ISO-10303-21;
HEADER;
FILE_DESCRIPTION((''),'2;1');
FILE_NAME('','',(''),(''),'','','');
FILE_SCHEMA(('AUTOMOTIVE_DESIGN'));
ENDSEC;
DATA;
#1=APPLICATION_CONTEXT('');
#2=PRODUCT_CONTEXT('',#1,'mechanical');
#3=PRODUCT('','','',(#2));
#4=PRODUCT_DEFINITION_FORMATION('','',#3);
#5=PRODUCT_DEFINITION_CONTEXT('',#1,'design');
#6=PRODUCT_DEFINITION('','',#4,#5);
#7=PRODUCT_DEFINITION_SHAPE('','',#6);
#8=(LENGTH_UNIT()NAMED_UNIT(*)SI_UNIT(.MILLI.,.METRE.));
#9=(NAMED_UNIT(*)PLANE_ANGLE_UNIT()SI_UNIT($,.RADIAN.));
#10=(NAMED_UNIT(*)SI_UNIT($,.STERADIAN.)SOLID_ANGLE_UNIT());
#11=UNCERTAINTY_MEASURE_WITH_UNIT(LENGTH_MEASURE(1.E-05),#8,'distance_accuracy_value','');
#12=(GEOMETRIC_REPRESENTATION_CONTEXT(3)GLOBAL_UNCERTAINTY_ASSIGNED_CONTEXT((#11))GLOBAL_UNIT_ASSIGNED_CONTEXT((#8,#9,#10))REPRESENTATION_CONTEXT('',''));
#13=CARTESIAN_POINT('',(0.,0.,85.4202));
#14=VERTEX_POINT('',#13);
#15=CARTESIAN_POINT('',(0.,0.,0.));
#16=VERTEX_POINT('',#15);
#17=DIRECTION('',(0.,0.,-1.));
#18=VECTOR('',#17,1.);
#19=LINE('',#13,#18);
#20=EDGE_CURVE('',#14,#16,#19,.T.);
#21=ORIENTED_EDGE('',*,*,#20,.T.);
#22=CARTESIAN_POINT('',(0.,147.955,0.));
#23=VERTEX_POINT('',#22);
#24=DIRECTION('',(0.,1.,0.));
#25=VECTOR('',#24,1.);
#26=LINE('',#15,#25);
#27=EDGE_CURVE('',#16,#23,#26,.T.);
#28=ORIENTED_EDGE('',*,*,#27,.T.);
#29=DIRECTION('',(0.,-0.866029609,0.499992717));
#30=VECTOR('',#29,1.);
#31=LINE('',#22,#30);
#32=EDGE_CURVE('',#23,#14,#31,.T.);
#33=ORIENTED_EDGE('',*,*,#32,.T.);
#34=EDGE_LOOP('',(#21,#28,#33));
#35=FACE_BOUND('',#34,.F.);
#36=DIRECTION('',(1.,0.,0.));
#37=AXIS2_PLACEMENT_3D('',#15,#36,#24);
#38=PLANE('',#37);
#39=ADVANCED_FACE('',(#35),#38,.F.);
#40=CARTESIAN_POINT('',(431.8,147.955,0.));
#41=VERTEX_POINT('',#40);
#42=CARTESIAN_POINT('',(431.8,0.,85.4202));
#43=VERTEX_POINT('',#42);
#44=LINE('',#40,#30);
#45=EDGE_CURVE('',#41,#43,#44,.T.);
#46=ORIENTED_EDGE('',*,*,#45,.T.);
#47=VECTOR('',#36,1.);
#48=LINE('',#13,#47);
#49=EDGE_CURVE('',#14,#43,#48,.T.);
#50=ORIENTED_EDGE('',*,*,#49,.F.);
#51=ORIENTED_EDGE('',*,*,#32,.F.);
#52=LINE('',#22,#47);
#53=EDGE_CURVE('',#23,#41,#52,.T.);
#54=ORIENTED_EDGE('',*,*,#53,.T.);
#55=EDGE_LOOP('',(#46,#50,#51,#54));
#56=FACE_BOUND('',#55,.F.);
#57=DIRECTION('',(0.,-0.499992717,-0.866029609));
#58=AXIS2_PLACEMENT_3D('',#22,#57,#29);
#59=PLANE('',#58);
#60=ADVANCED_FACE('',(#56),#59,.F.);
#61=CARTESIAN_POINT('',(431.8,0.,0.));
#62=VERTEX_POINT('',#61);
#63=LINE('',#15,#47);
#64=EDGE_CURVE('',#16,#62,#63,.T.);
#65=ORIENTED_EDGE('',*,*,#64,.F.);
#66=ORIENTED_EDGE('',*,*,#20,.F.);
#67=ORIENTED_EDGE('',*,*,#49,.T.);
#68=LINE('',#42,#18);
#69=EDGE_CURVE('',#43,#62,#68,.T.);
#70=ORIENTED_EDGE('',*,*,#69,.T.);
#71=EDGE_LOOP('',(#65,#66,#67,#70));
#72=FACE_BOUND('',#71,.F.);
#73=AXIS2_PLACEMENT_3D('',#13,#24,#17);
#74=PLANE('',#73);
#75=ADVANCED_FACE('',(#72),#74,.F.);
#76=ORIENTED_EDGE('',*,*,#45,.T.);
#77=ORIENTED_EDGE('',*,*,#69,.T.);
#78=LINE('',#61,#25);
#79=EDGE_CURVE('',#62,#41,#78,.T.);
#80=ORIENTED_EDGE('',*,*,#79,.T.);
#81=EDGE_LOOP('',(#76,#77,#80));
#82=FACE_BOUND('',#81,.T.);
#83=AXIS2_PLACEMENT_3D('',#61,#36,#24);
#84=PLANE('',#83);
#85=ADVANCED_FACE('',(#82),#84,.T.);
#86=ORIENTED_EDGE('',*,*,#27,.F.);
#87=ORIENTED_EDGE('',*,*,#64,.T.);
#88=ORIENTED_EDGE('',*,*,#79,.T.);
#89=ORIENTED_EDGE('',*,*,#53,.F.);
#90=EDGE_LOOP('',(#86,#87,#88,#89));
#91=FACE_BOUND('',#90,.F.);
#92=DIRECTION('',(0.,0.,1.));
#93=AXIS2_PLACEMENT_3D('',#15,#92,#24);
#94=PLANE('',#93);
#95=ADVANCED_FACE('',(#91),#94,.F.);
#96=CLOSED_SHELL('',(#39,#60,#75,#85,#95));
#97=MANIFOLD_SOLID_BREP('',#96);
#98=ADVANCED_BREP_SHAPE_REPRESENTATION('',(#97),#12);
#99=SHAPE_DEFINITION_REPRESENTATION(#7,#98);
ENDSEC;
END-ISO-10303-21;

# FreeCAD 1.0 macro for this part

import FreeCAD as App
import Part
import Sketcher
Q = App.Units.Quantity

doc = App.newDocument("Part")
body = doc.addObject("PartDesign::Body", "Body")

sketch1 = body.newObject("Sketcher::SketchObject", "Sketch")
sketch1.AttachmentSupport = (doc.getObject("YZ_Plane"), [""])
sketch1.MapMode = "FlatFace"
sketch1.addGeometry([
    Part.LineSegment(App.Vector(0, 85, 0), App.Vector(0, 0, 0)),
    Part.LineSegment(App.Vector(0, 0, 0), App.Vector(148, 0, 0)),
    Part.LineSegment(App.Vector(148, 0, 0), App.Vector(0, 85, 0)),
], False)
sketch1.addConstraint([
    Sketcher.Constraint("Coincident", 0, 2, 1, 1),
    Sketcher.Constraint("Coincident", 1, 2, 2, 1),
    Sketcher.Constraint("Coincident", 2, 2, 0, 1),
    Sketcher.Constraint("Vertical", 0),
    Sketcher.Constraint("Horizontal", 1),
    Sketcher.Constraint("Coincident", 0, 2, -1, 1),
    Sketcher.Constraint("DistanceX", 1, 1, 1, 2, Q("5.825 in")),
    Sketcher.Constraint("DistanceY", 0, 2, 0, 1, Q("3.363 in")),
])
pad1 = body.newObject("PartDesign::Pad", "Pad")
pad1.Profile = sketch1
pad1.Length = Q("17 in")

doc.recompute()
